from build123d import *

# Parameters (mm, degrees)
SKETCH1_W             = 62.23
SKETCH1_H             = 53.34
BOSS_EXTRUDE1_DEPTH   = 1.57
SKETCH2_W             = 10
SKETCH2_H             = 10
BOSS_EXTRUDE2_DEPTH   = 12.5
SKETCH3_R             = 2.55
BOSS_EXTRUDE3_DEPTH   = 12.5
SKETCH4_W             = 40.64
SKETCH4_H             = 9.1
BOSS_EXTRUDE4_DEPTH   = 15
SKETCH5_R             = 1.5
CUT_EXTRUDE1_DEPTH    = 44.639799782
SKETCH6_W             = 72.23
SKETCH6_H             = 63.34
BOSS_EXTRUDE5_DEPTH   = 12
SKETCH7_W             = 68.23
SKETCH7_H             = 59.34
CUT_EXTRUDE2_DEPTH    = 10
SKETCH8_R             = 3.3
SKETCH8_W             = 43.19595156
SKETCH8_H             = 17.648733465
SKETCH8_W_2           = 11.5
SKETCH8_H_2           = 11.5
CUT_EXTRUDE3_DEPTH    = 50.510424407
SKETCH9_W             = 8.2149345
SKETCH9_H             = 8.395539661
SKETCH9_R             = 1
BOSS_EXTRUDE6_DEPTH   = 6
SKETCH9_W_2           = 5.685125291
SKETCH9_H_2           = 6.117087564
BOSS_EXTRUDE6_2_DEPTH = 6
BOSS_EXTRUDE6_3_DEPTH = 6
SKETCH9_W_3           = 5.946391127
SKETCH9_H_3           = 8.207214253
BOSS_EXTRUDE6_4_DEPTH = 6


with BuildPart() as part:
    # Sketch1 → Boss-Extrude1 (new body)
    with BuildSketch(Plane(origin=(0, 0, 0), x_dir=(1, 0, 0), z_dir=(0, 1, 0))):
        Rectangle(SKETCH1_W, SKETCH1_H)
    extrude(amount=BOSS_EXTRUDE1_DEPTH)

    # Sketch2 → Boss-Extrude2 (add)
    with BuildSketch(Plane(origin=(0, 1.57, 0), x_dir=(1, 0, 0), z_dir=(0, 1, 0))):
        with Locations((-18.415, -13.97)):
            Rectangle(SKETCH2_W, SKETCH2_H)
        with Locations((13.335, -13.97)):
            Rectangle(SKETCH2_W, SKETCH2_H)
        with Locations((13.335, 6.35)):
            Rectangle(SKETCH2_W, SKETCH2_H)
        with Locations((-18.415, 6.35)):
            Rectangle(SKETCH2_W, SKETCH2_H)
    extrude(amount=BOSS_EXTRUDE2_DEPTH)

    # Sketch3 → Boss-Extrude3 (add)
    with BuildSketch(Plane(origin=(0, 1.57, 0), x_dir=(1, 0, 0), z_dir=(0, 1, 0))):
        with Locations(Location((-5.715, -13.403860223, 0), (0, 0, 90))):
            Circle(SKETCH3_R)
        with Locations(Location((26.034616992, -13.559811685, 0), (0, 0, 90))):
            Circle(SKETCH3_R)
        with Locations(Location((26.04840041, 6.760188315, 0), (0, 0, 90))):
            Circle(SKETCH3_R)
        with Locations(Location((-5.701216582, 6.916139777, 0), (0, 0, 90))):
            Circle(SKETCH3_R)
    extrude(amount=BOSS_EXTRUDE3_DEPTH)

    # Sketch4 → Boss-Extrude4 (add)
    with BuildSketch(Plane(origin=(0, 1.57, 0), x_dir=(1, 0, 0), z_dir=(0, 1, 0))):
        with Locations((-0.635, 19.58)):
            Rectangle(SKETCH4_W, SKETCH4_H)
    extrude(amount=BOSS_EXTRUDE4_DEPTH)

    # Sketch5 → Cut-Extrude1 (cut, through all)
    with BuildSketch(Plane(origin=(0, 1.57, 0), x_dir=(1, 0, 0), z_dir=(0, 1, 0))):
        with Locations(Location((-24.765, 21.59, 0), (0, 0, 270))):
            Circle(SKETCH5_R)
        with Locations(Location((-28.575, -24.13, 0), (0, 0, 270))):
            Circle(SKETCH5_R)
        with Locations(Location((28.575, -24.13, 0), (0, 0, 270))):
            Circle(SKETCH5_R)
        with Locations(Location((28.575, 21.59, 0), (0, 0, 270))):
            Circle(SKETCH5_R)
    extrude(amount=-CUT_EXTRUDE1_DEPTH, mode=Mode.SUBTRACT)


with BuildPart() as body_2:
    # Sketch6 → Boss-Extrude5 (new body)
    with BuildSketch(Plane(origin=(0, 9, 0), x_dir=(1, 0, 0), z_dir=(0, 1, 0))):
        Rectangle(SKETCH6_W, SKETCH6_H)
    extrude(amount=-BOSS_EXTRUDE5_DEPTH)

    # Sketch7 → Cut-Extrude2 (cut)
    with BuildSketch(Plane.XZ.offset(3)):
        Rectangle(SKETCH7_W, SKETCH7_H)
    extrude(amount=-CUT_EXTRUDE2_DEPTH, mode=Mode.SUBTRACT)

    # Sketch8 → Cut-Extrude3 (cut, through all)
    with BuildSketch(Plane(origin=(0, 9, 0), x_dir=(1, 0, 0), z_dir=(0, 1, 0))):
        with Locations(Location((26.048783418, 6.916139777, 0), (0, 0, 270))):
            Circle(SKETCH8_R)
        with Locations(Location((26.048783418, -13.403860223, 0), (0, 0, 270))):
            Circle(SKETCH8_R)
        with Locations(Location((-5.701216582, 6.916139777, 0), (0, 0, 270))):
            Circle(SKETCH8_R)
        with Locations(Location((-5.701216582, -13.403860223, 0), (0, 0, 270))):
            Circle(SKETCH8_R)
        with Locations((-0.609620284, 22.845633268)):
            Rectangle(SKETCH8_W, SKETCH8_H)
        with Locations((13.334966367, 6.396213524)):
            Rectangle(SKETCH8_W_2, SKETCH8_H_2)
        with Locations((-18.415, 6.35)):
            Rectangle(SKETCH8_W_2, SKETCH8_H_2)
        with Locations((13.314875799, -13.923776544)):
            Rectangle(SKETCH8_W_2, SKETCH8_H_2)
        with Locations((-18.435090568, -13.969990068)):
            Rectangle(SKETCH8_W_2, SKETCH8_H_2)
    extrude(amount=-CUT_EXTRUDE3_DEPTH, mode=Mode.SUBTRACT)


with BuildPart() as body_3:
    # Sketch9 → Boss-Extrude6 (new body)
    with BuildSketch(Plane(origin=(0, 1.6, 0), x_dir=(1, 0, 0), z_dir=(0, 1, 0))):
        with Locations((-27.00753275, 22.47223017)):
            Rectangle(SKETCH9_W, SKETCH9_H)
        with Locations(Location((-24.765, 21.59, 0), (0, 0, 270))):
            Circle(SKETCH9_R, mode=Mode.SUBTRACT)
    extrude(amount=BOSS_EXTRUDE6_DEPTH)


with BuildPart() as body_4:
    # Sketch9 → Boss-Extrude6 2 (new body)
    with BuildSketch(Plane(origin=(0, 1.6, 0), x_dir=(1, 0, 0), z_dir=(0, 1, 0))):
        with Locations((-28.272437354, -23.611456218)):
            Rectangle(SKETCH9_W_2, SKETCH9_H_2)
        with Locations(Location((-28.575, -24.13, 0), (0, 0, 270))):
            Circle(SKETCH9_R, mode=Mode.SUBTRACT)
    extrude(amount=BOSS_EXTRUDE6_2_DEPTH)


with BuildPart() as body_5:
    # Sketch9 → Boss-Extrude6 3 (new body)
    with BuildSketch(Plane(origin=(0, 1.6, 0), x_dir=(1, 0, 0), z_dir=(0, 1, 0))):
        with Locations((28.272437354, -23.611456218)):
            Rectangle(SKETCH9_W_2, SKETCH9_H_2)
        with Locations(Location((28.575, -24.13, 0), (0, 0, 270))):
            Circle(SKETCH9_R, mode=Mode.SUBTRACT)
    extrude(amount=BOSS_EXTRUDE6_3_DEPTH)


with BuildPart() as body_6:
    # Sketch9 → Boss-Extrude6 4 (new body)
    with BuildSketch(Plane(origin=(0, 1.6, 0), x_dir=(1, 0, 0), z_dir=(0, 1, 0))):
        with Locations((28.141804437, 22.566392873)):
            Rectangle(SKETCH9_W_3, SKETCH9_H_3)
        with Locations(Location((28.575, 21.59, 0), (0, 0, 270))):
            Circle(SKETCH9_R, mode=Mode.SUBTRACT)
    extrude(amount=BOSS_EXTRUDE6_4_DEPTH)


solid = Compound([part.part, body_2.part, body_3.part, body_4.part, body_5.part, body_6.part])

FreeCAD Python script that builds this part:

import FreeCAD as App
import Part
import Sketcher
Q = App.Units.Quantity

doc = App.newDocument("Part")
body = doc.addObject("PartDesign::Body", "Body")

sketch1 = body.newObject("Sketcher::SketchObject", "Sketch")
sketch1.AttachmentSupport = (doc.getObject("XZ_Plane"), [""])
sketch1.MapMode = "FlatFace"
sketch1.addGeometry(Part.LineSegment(App.Vector(-31.115, -26.67, 0), App.Vector(-31.115, 26.67, 0)), False)
sketch1.addGeometry(Part.LineSegment(App.Vector(-31.115, 26.67, 0), App.Vector(31.115, 26.67, 0)), False)
sketch1.addGeometry(Part.LineSegment(App.Vector(31.115, 26.67, 0), App.Vector(31.115, -26.67, 0)), False)
sketch1.addGeometry(Part.LineSegment(App.Vector(31.115, -26.67, 0), App.Vector(-31.115, -26.67, 0)), False)
sketch1.addConstraint(Sketcher.Constraint("Coincident", 0, 2, 1, 1))
sketch1.addConstraint(Sketcher.Constraint("Coincident", 1, 2, 2, 1))
sketch1.addConstraint(Sketcher.Constraint("Coincident", 2, 2, 3, 1))
sketch1.addConstraint(Sketcher.Constraint("Coincident", 3, 2, 0, 1))
sketch1.addConstraint(Sketcher.Constraint("Vertical", 0))
sketch1.addConstraint(Sketcher.Constraint("Horizontal", 1))
sketch1.addConstraint(Sketcher.Constraint("Vertical", 2))
sketch1.addConstraint(Sketcher.Constraint("Horizontal", 3))
sketch1.addConstraint(Sketcher.Constraint("Symmetric", 0, 2, 2, 2, -1, 1))
sketch1.addConstraint(Sketcher.Constraint("DistanceX", 1, 1, 1, 2, Q("62.23 mm")))
sketch1.addConstraint(Sketcher.Constraint("DistanceY", 0, 1, 0, 2, Q("53.34 mm")))
pad1 = body.newObject("PartDesign::Pad", "Pad")
pad1.Profile = sketch1
pad1.Length = 1.57
pad1.Reversed = True

sketch2 = body.newObject("Sketcher::SketchObject", "Sketch001")
sketch2.AttachmentSupport = (doc.getObject("XZ_Plane"), [""])
sketch2.MapMode = "FlatFace"
sketch2.AttachmentOffset = App.Placement(App.Vector(0, 0, -1.57), App.Rotation())
sketch2.addGeometry(Part.LineSegment(App.Vector(-23.415, 8.97, 0), App.Vector(-23.415, 18.97, 0)), False)
sketch2.addGeometry(Part.LineSegment(App.Vector(-23.415, 18.97, 0), App.Vector(-13.415, 18.97, 0)), False)
sketch2.addGeometry(Part.LineSegment(App.Vector(-13.415, 18.97, 0), App.Vector(-13.415, 8.97, 0)), False)
sketch2.addGeometry(Part.LineSegment(App.Vector(-13.415, 8.97, 0), App.Vector(-23.415, 8.97, 0)), False)
sketch2.addGeometry(Part.LineSegment(App.Vector(8.335, 8.97, 0), App.Vector(8.335, 18.97, 0)), False)
sketch2.addGeometry(Part.LineSegment(App.Vector(8.335, 18.97, 0), App.Vector(18.335, 18.97, 0)), False)
sketch2.addGeometry(Part.LineSegment(App.Vector(18.335, 18.97, 0), App.Vector(18.335, 8.97, 0)), False)
sketch2.addGeometry(Part.LineSegment(App.Vector(18.335, 8.97, 0), App.Vector(8.335, 8.97, 0)), False)
sketch2.addGeometry(Part.LineSegment(App.Vector(8.335, -11.35, 0), App.Vector(8.335, -1.35, 0)), False)
sketch2.addGeometry(Part.LineSegment(App.Vector(8.335, -1.35, 0), App.Vector(18.335, -1.35, 0)), False)
sketch2.addGeometry(Part.LineSegment(App.Vector(18.335, -1.35, 0), App.Vector(18.335, -11.35, 0)), False)
sketch2.addGeometry(Part.LineSegment(App.Vector(18.335, -11.35, 0), App.Vector(8.335, -11.35, 0)), False)
sketch2.addGeometry(Part.LineSegment(App.Vector(-23.415, -11.35, 0), App.Vector(-23.415, -1.35, 0)), False)
sketch2.addGeometry(Part.LineSegment(App.Vector(-23.415, -1.35, 0), App.Vector(-13.415, -1.35, 0)), False)
sketch2.addGeometry(Part.LineSegment(App.Vector(-13.415, -1.35, 0), App.Vector(-13.415, -11.35, 0)), False)
sketch2.addGeometry(Part.LineSegment(App.Vector(-13.415, -11.35, 0), App.Vector(-23.415, -11.35, 0)), False)
sketch2.addConstraint(Sketcher.Constraint("Coincident", 0, 2, 1, 1))
sketch2.addConstraint(Sketcher.Constraint("Coincident", 1, 2, 2, 1))
sketch2.addConstraint(Sketcher.Constraint("Coincident", 2, 2, 3, 1))
sketch2.addConstraint(Sketcher.Constraint("Coincident", 3, 2, 0, 1))
sketch2.addConstraint(Sketcher.Constraint("Coincident", 4, 2, 5, 1))
sketch2.addConstraint(Sketcher.Constraint("Coincident", 5, 2, 6, 1))
sketch2.addConstraint(Sketcher.Constraint("Coincident", 6, 2, 7, 1))
sketch2.addConstraint(Sketcher.Constraint("Coincident", 7, 2, 4, 1))
sketch2.addConstraint(Sketcher.Constraint("Coincident", 8, 2, 9, 1))
sketch2.addConstraint(Sketcher.Constraint("Coincident", 9, 2, 10, 1))
sketch2.addConstraint(Sketcher.Constraint("Coincident", 10, 2, 11, 1))
sketch2.addConstraint(Sketcher.Constraint("Coincident", 11, 2, 8, 1))
sketch2.addConstraint(Sketcher.Constraint("Coincident", 12, 2, 13, 1))
sketch2.addConstraint(Sketcher.Constraint("Coincident", 13, 2, 14, 1))
sketch2.addConstraint(Sketcher.Constraint("Coincident", 14, 2, 15, 1))
sketch2.addConstraint(Sketcher.Constraint("Coincident", 15, 2, 12, 1))
sketch2.addConstraint(Sketcher.Constraint("Vertical", 0))
sketch2.addConstraint(Sketcher.Constraint("Horizontal", 1))
sketch2.addConstraint(Sketcher.Constraint("Vertical", 2))
sketch2.addConstraint(Sketcher.Constraint("Horizontal", 3))
sketch2.addConstraint(Sketcher.Constraint("Vertical", 4))
sketch2.addConstraint(Sketcher.Constraint("Horizontal", 5))
sketch2.addConstraint(Sketcher.Constraint("Vertical", 6))
sketch2.addConstraint(Sketcher.Constraint("Horizontal", 7))
sketch2.addConstraint(Sketcher.Constraint("Vertical", 8))
sketch2.addConstraint(Sketcher.Constraint("Horizontal", 9))
sketch2.addConstraint(Sketcher.Constraint("Vertical", 10))
sketch2.addConstraint(Sketcher.Constraint("Horizontal", 11))
sketch2.addConstraint(Sketcher.Constraint("Vertical", 12))
sketch2.addConstraint(Sketcher.Constraint("Horizontal", 13))
sketch2.addConstraint(Sketcher.Constraint("Vertical", 14))
sketch2.addConstraint(Sketcher.Constraint("Horizontal", 15))
sketch2.addConstraint(Sketcher.Constraint("Horizontal", 1, 2, 4, 2))
sketch2.addConstraint(Sketcher.Constraint("Horizontal", 3, 2, 6, 2))
sketch2.addConstraint(Sketcher.Constraint("Horizontal", 9, 2, 12, 2))
sketch2.addConstraint(Sketcher.Constraint("Horizontal", 11, 2, 14, 2))
sketch2.addConstraint(Sketcher.Constraint("Vertical", 7, 2, 8, 2))
sketch2.addConstraint(Sketcher.Constraint("Vertical", 6, 2, 9, 2))
sketch2.addConstraint(Sketcher.Constraint("Vertical", 3, 2, 12, 2))
sketch2.addConstraint(Sketcher.Constraint("Vertical", 2, 2, 13, 2))
sketch2.addConstraint(Sketcher.Constraint("Equal", 3, 5))
sketch2.addConstraint(Sketcher.Constraint("Equal", 15, 0))
sketch2.addConstraint(Sketcher.Constraint("Equal", 6, 8))
sketch2.addConstraint(Sketcher.Constraint("DistanceX", 1, 1, 1, 2, Q("10 mm")))
sketch2.addConstraint(Sketcher.Constraint("DistanceY", -1, 1, 0, 2, Q("18.97 mm")))
sketch2.addConstraint(Sketcher.Constraint("DistanceY", 8, 2, -1, 1, Q("1.35 mm")))
sketch2.addConstraint(Sketcher.Constraint("DistanceX", 1, 2, 4, 2, Q("21.75 mm")))
sketch2.addConstraint(Sketcher.Constraint("DistanceX", 0, 2, -1, 1, Q("23.415 mm")))
pad2 = body.newObject("PartDesign::Pad", "Pad001")
pad2.Profile = sketch2
pad2.Length = 12.5
pad2.Reversed = True

sketch3 = body.newObject("Sketcher::SketchObject", "Sketch002")
sketch3.AttachmentSupport = (doc.getObject("XZ_Plane"), [""])
sketch3.MapMode = "FlatFace"
sketch3.AttachmentOffset = App.Placement(App.Vector(0, 0, -1.57), App.Rotation())
sketch3.addGeometry(Part.Circle(App.Vector(-5.715, 13.40386, 0), App.Vector(0, 0, 1), 2.55), False)
sketch3.addGeometry(Part.Circle(App.Vector(26.034617, 13.559812, 0), App.Vector(0, 0, 1), 2.55), False)
sketch3.addGeometry(Part.Circle(App.Vector(26.0484, -6.760188, 0), App.Vector(0, 0, 1), 2.55), False)
sketch3.addGeometry(Part.Circle(App.Vector(-5.701217, -6.91614, 0), App.Vector(0, 0, 1), 2.55), False)
sketch3.addConstraint(Sketcher.Constraint("Equal", 0, 1))
sketch3.addConstraint(Sketcher.Constraint("Equal", 1, 2))
sketch3.addConstraint(Sketcher.Constraint("Equal", 2, 3))
sketch3.addConstraint(Sketcher.Constraint("Diameter", 0, Q("5.1 mm")))
sketch3.addConstraint(Sketcher.Constraint("DistanceY", 2, 3, 1, 3, Q("20.32 mm")))
sketch3.addConstraint(Sketcher.Constraint("DistanceY", 3, 3, 0, 3, Q("20.32 mm")))
sketch3.addConstraint(Sketcher.Constraint("DistanceX", 0, 3, -1, 1, Q("5.715 mm")))
sketch3.addConstraint(Sketcher.Constraint("DistanceX", -1, 1, 2, 3, Q("26.0484 mm")))
sketch3.addConstraint(Sketcher.Constraint("DistanceY", -1, 1, 0, 3, Q("13.40386 mm")))
sketch3.addConstraint(Sketcher.Constraint("DistanceY", -1, 1, 1, 3, Q("13.559812 mm")))
sketch3.addConstraint(Sketcher.Constraint("DistanceX", -1, 1, 1, 3, Q("26.034617 mm")))
sketch3.addConstraint(Sketcher.Constraint("DistanceX", 3, 3, -1, 1, Q("5.701217 mm")))
pad3 = body.newObject("PartDesign::Pad", "Pad002")
pad3.Profile = sketch3
pad3.Length = 12.5
pad3.Reversed = True

sketch4 = body.newObject("Sketcher::SketchObject", "Sketch003")
sketch4.AttachmentSupport = (doc.getObject("XZ_Plane"), [""])
sketch4.MapMode = "FlatFace"
sketch4.AttachmentOffset = App.Placement(App.Vector(0, 0, -1.57), App.Rotation())
sketch4.addGeometry(Part.LineSegment(App.Vector(-20.955, -24.13, 0), App.Vector(-20.955, -15.03, 0)), False)
sketch4.addGeometry(Part.LineSegment(App.Vector(-20.955, -15.03, 0), App.Vector(19.685, -15.03, 0)), False)
sketch4.addGeometry(Part.LineSegment(App.Vector(19.685, -15.03, 0), App.Vector(19.685, -24.13, 0)), False)
sketch4.addGeometry(Part.LineSegment(App.Vector(19.685, -24.13, 0), App.Vector(-20.955, -24.13, 0)), False)
sketch4.addConstraint(Sketcher.Constraint("Coincident", 0, 2, 1, 1))
sketch4.addConstraint(Sketcher.Constraint("Coincident", 1, 2, 2, 1))
sketch4.addConstraint(Sketcher.Constraint("Coincident", 2, 2, 3, 1))
sketch4.addConstraint(Sketcher.Constraint("Coincident", 3, 2, 0, 1))
sketch4.addConstraint(Sketcher.Constraint("Vertical", 0))
sketch4.addConstraint(Sketcher.Constraint("Horizontal", 1))
sketch4.addConstraint(Sketcher.Constraint("Vertical", 2))
sketch4.addConstraint(Sketcher.Constraint("Horizontal", 3))
sketch4.addConstraint(Sketcher.Constraint("DistanceY", 0, 1, 0, 2, Q("9.1 mm")))
sketch4.addConstraint(Sketcher.Constraint("DistanceX", 1, 1, 1, 2, Q("40.64 mm")))
sketch4.addConstraint(Sketcher.Constraint("DistanceY", 0, 2, -1, 1, Q("15.03 mm")))
sketch4.addConstraint(Sketcher.Constraint("DistanceX", 0, 2, -1, 1, Q("20.955 mm")))
pad4 = body.newObject("PartDesign::Pad", "Pad003")
pad4.Profile = sketch4
pad4.Length = 15
pad4.Reversed = True

sketch5 = body.newObject("Sketcher::SketchObject", "Sketch004")
sketch5.AttachmentSupport = (doc.getObject("XZ_Plane"), [""])
sketch5.MapMode = "FlatFace"
sketch5.AttachmentOffset = App.Placement(App.Vector(0, 0, -1.57), App.Rotation())
sketch5.addGeometry(Part.Circle(App.Vector(-24.765, -21.59, 0), App.Vector(0, 0, 1), 1.5), False)
sketch5.addGeometry(Part.Circle(App.Vector(-28.575, 24.13, 0), App.Vector(0, 0, 1), 1.5), False)
sketch5.addGeometry(Part.Circle(App.Vector(28.575, 24.13, 0), App.Vector(0, 0, 1), 1.5), False)
sketch5.addGeometry(Part.Circle(App.Vector(28.575, -21.59, 0), App.Vector(0, 0, 1), 1.5), False)
sketch5.addConstraint(Sketcher.Constraint("Equal", 0, 1))
sketch5.addConstraint(Sketcher.Constraint("Equal", 1, 2))
sketch5.addConstraint(Sketcher.Constraint("Equal", 2, 3))
sketch5.addConstraint(Sketcher.Constraint("Symmetric", 1, 3, 2, 3, -2))
sketch5.addConstraint(Sketcher.Constraint("Horizontal", 0, 3, 3, 3))
sketch5.addConstraint(Sketcher.Constraint("Vertical", 2, 3, 3, 3))
sketch5.addConstraint(Sketcher.Constraint("Diameter", 0, Q("3 mm")))
sketch5.addConstraint(Sketcher.Constraint("DistanceY", 0, 3, -1, 1, Q("21.59 mm")))
sketch5.addConstraint(Sketcher.Constraint("DistanceY", -1, 1, 1, 3, Q("24.13 mm")))
sketch5.addConstraint(Sketcher.Constraint("DistanceX", 1, 3, 0, 3, Q("3.81 mm")))
sketch5.addConstraint(Sketcher.Constraint("DistanceX", 1, 3, 2, 3, Q("57.15 mm")))
pocket1 = body.newObject("PartDesign::Pocket", "Pocket")
pocket1.Profile = sketch5
pocket1.Type = "ThroughAll"
pocket1.Reversed = True
body2 = doc.addObject("PartDesign::Body", "Body001")

sketch6 = body2.newObject("Sketcher::SketchObject", "Sketch005")
sketch6.AttachmentSupport = (doc.getObject("XZ_Plane001"), [""])
sketch6.MapMode = "FlatFace"
sketch6.AttachmentOffset = App.Placement(App.Vector(0, 0, -9), App.Rotation())
sketch6.addGeometry(Part.LineSegment(App.Vector(-36.115, -31.67, 0), App.Vector(-36.115, 31.67, 0)), False)
sketch6.addGeometry(Part.LineSegment(App.Vector(-36.115, 31.67, 0), App.Vector(36.115, 31.67, 0)), False)
sketch6.addGeometry(Part.LineSegment(App.Vector(36.115, 31.67, 0), App.Vector(36.115, -31.67, 0)), False)
sketch6.addGeometry(Part.LineSegment(App.Vector(36.115, -31.67, 0), App.Vector(-36.115, -31.67, 0)), False)
sketch6.addConstraint(Sketcher.Constraint("Coincident", 0, 2, 1, 1))
sketch6.addConstraint(Sketcher.Constraint("Coincident", 1, 2, 2, 1))
sketch6.addConstraint(Sketcher.Constraint("Coincident", 2, 2, 3, 1))
sketch6.addConstraint(Sketcher.Constraint("Coincident", 3, 2, 0, 1))
sketch6.addConstraint(Sketcher.Constraint("Vertical", 0))
sketch6.addConstraint(Sketcher.Constraint("Horizontal", 1))
sketch6.addConstraint(Sketcher.Constraint("Vertical", 2))
sketch6.addConstraint(Sketcher.Constraint("Horizontal", 3))
sketch6.addConstraint(Sketcher.Constraint("Symmetric", 0, 2, 2, 2, -1, 1))
sketch6.addConstraint(Sketcher.Constraint("DistanceX", 1, 1, 1, 2, Q("72.23 mm")))
sketch6.addConstraint(Sketcher.Constraint("DistanceY", 0, 1, 0, 2, Q("63.34 mm")))
pad5 = body2.newObject("PartDesign::Pad", "Pad004")
pad5.Profile = sketch6
pad5.Length = 12

sketch7 = body2.newObject("Sketcher::SketchObject", "Sketch006")
sketch7.AttachmentSupport = (doc.getObject("XZ_Plane001"), [""])
sketch7.MapMode = "FlatFace"
sketch7.AttachmentOffset = App.Placement(App.Vector(0, 0, 3), App.Rotation())
sketch7.addGeometry(Part.LineSegment(App.Vector(-34.115, 29.67, 0), App.Vector(-34.115, -29.67, 0)), False)
sketch7.addGeometry(Part.LineSegment(App.Vector(-34.115, -29.67, 0), App.Vector(34.115, -29.67, 0)), False)
sketch7.addGeometry(Part.LineSegment(App.Vector(34.115, -29.67, 0), App.Vector(34.115, 29.67, 0)), False)
sketch7.addGeometry(Part.LineSegment(App.Vector(34.115, 29.67, 0), App.Vector(-34.115, 29.67, 0)), False)
sketch7.addConstraint(Sketcher.Constraint("Coincident", 0, 2, 1, 1))
sketch7.addConstraint(Sketcher.Constraint("Coincident", 1, 2, 2, 1))
sketch7.addConstraint(Sketcher.Constraint("Coincident", 2, 2, 3, 1))
sketch7.addConstraint(Sketcher.Constraint("Coincident", 3, 2, 0, 1))
sketch7.addConstraint(Sketcher.Constraint("Vertical", 0))
sketch7.addConstraint(Sketcher.Constraint("Horizontal", 1))
sketch7.addConstraint(Sketcher.Constraint("Vertical", 2))
sketch7.addConstraint(Sketcher.Constraint("Horizontal", 3))
sketch7.addConstraint(Sketcher.Constraint("Symmetric", 0, 2, 2, 2, -1, 1))
sketch7.addConstraint(Sketcher.Constraint("DistanceX", 1, 1, 1, 2, Q("68.23 mm")))
sketch7.addConstraint(Sketcher.Constraint("DistanceY", 0, 2, 0, 1, Q("59.34 mm")))
pocket2 = body2.newObject("PartDesign::Pocket", "Pocket001")
pocket2.Profile = sketch7
pocket2.Length = 10

sketch8 = body2.newObject("Sketcher::SketchObject", "Sketch007")
sketch8.AttachmentSupport = (doc.getObject("XZ_Plane001"), [""])
sketch8.MapMode = "FlatFace"
sketch8.AttachmentOffset = App.Placement(App.Vector(0, 0, -9), App.Rotation())
sketch8.addGeometry(Part.Circle(App.Vector(26.048783, -6.91614, 0), App.Vector(0, 0, 1), 3.3), False)
sketch8.addGeometry(Part.Circle(App.Vector(26.048783, 13.40386, 0), App.Vector(0, 0, 1), 3.3), False)
sketch8.addGeometry(Part.Circle(App.Vector(-5.701217, -6.91614, 0), App.Vector(0, 0, 1), 3.3), False)
sketch8.addGeometry(Part.Circle(App.Vector(-5.701217, 13.40386, 0), App.Vector(0, 0, 1), 3.3), False)
sketch8.addGeometry(Part.LineSegment(App.Vector(-22.207596, -31.67, 0), App.Vector(-22.207596, -14.021267, 0)), False)
sketch8.addGeometry(Part.LineSegment(App.Vector(-22.207596, -14.021267, 0), App.Vector(20.988355, -14.021267, 0)), False)
sketch8.addGeometry(Part.LineSegment(App.Vector(20.988355, -14.021267, 0), App.Vector(20.988355, -31.67, 0)), False)
sketch8.addGeometry(Part.LineSegment(App.Vector(20.988355, -31.67, 0), App.Vector(-22.207596, -31.67, 0)), False)
sketch8.addGeometry(Part.LineSegment(App.Vector(7.584966, -12.146214, 0), App.Vector(7.584966, -0.646214, 0)), False)
sketch8.addGeometry(Part.LineSegment(App.Vector(7.584966, -0.646214, 0), App.Vector(19.084966, -0.646214, 0)), False)
sketch8.addGeometry(Part.LineSegment(App.Vector(19.084966, -0.646214, 0), App.Vector(19.084966, -12.146214, 0)), False)
sketch8.addGeometry(Part.LineSegment(App.Vector(19.084966, -12.146214, 0), App.Vector(7.584966, -12.146214, 0)), False)
sketch8.addGeometry(Part.LineSegment(App.Vector(-24.165, -12.1, 0), App.Vector(-24.165, -0.6, 0)), False)
sketch8.addGeometry(Part.LineSegment(App.Vector(-24.165, -0.6, 0), App.Vector(-12.665, -0.6, 0)), False)
sketch8.addGeometry(Part.LineSegment(App.Vector(-12.665, -0.6, 0), App.Vector(-12.665, -12.1, 0)), False)
sketch8.addGeometry(Part.LineSegment(App.Vector(-12.665, -12.1, 0), App.Vector(-24.165, -12.1, 0)), False)
sketch8.addGeometry(Part.LineSegment(App.Vector(7.564876, 8.173777, 0), App.Vector(7.564876, 19.673777, 0)), False)
sketch8.addGeometry(Part.LineSegment(App.Vector(7.564876, 19.673777, 0), App.Vector(19.064876, 19.673777, 0)), False)
sketch8.addGeometry(Part.LineSegment(App.Vector(19.064876, 19.673777, 0), App.Vector(19.064876, 8.173777, 0)), False)
sketch8.addGeometry(Part.LineSegment(App.Vector(19.064876, 8.173777, 0), App.Vector(7.564876, 8.173777, 0)), False)
sketch8.addGeometry(Part.LineSegment(App.Vector(-24.185091, 8.21999, 0), App.Vector(-24.185091, 19.71999, 0)), False)
sketch8.addGeometry(Part.LineSegment(App.Vector(-24.185091, 19.71999, 0), App.Vector(-12.685091, 19.71999, 0)), False)
sketch8.addGeometry(Part.LineSegment(App.Vector(-12.685091, 19.71999, 0), App.Vector(-12.685091, 8.21999, 0)), False)
sketch8.addGeometry(Part.LineSegment(App.Vector(-12.685091, 8.21999, 0), App.Vector(-24.185091, 8.21999, 0)), False)
sketch8.addConstraint(Sketcher.Constraint("Coincident", 4, 2, 5, 1))
sketch8.addConstraint(Sketcher.Constraint("Coincident", 5, 2, 6, 1))
sketch8.addConstraint(Sketcher.Constraint("Coincident", 6, 2, 7, 1))
sketch8.addConstraint(Sketcher.Constraint("Coincident", 7, 2, 4, 1))
sketch8.addConstraint(Sketcher.Constraint("Coincident", 8, 2, 9, 1))
sketch8.addConstraint(Sketcher.Constraint("Coincident", 9, 2, 10, 1))
sketch8.addConstraint(Sketcher.Constraint("Coincident", 10, 2, 11, 1))
sketch8.addConstraint(Sketcher.Constraint("Coincident", 11, 2, 8, 1))
sketch8.addConstraint(Sketcher.Constraint("Coincident", 12, 2, 13, 1))
sketch8.addConstraint(Sketcher.Constraint("Coincident", 13, 2, 14, 1))
sketch8.addConstraint(Sketcher.Constraint("Coincident", 14, 2, 15, 1))
sketch8.addConstraint(Sketcher.Constraint("Coincident", 15, 2, 12, 1))
sketch8.addConstraint(Sketcher.Constraint("Coincident", 16, 2, 17, 1))
sketch8.addConstraint(Sketcher.Constraint("Coincident", 17, 2, 18, 1))
sketch8.addConstraint(Sketcher.Constraint("Coincident", 18, 2, 19, 1))
sketch8.addConstraint(Sketcher.Constraint("Coincident", 19, 2, 16, 1))
sketch8.addConstraint(Sketcher.Constraint("Coincident", 20, 2, 21, 1))
sketch8.addConstraint(Sketcher.Constraint("Coincident", 21, 2, 22, 1))
sketch8.addConstraint(Sketcher.Constraint("Coincident", 22, 2, 23, 1))
sketch8.addConstraint(Sketcher.Constraint("Coincident", 23, 2, 20, 1))
sketch8.addConstraint(Sketcher.Constraint("Vertical", 4))
sketch8.addConstraint(Sketcher.Constraint("Horizontal", 5))
sketch8.addConstraint(Sketcher.Constraint("Vertical", 6))
sketch8.addConstraint(Sketcher.Constraint("Horizontal", 7))
sketch8.addConstraint(Sketcher.Constraint("Vertical", 8))
sketch8.addConstraint(Sketcher.Constraint("Horizontal", 9))
sketch8.addConstraint(Sketcher.Constraint("Vertical", 10))
sketch8.addConstraint(Sketcher.Constraint("Horizontal", 11))
sketch8.addConstraint(Sketcher.Constraint("Vertical", 12))
sketch8.addConstraint(Sketcher.Constraint("Horizontal", 13))
sketch8.addConstraint(Sketcher.Constraint("Vertical", 14))
sketch8.addConstraint(Sketcher.Constraint("Horizontal", 15))
sketch8.addConstraint(Sketcher.Constraint("Vertical", 16))
sketch8.addConstraint(Sketcher.Constraint("Horizontal", 17))
sketch8.addConstraint(Sketcher.Constraint("Vertical", 18))
sketch8.addConstraint(Sketcher.Constraint("Horizontal", 19))
sketch8.addConstraint(Sketcher.Constraint("Vertical", 20))
sketch8.addConstraint(Sketcher.Constraint("Horizontal", 21))
sketch8.addConstraint(Sketcher.Constraint("Vertical", 22))
sketch8.addConstraint(Sketcher.Constraint("Horizontal", 23))
sketch8.addConstraint(Sketcher.Constraint("Equal", 0, 1))
sketch8.addConstraint(Sketcher.Constraint("Equal", 1, 2))
sketch8.addConstraint(Sketcher.Constraint("Equal", 2, 3))
sketch8.addConstraint(Sketcher.Constraint("Horizontal", 0, 3, 2, 3))
sketch8.addConstraint(Sketcher.Constraint("Horizontal", 1, 3, 3, 3))
sketch8.addConstraint(Sketcher.Constraint("Vertical", 0, 3, 1, 3))
sketch8.addConstraint(Sketcher.Constraint("Vertical", 2, 3, 3, 3))
sketch8.addConstraint(Sketcher.Constraint("Equal", 11, 13))
sketch8.addConstraint(Sketcher.Constraint("Equal", 15, 17))
sketch8.addConstraint(Sketcher.Constraint("Equal", 19, 21))
sketch8.addConstraint(Sketcher.Constraint("Equal", 23, 8))
sketch8.addConstraint(Sketcher.Constraint("Equal", 10, 12))
sketch8.addConstraint(Sketcher.Constraint("Equal", 14, 16))
sketch8.addConstraint(Sketcher.Constraint("Equal", 18, 20))
sketch8.addConstraint(Sketcher.Constraint("Diameter", 0, Q("6.6 mm")))
sketch8.addConstraint(Sketcher.Constraint("DistanceX", 9, 1, 9, 2, Q("11.5 mm")))
sketch8.addConstraint(Sketcher.Constraint("DistanceY", 12, 2, -1, 1, Q("0.6 mm")))
sketch8.addConstraint(Sketcher.Constraint("DistanceY", 6, 2, -1, 1, Q("31.67 mm")))
sketch8.addConstraint(Sketcher.Constraint("DistanceY", 0, 3, 1, 3, Q("20.32 mm")))
sketch8.addConstraint(Sketcher.Constraint("DistanceX", 2, 3, 0, 3, Q("31.75 mm")))
sketch8.addConstraint(Sketcher.Constraint("DistanceX", 12, 2, -1, 1, Q("24.165 mm")))
sketch8.addConstraint(Sketcher.Constraint("DistanceX", 5, 1, 5, 2, Q("43.195952 mm")))
sketch8.addConstraint(Sketcher.Constraint("DistanceY", 4, 1, 4, 2, Q("17.648733 mm")))
sketch8.addConstraint(Sketcher.Constraint("DistanceY", 0, 3, -1, 1, Q("6.91614 mm")))
sketch8.addConstraint(Sketcher.Constraint("DistanceX", 20, 2, -1, 1, Q("24.185091 mm")))
sketch8.addConstraint(Sketcher.Constraint("DistanceY", -1, 1, 20, 2, Q("19.71999 mm")))
sketch8.addConstraint(Sketcher.Constraint("DistanceX", 4, 2, 2, 3, Q("16.506379 mm")))
sketch8.addConstraint(Sketcher.Constraint("DistanceX", 8, 2, 5, 2, Q("13.403389 mm")))
sketch8.addConstraint(Sketcher.Constraint("DistanceX", 16, 2, 8, 2, Q("0.020091 mm")))
sketch8.addConstraint(Sketcher.Constraint("DistanceY", 8, 2, 16, 2, Q("20.31999 mm")))
sketch8.addConstraint(Sketcher.Constraint("DistanceX", -1, 1, 0, 3, Q("26.048783 mm")))
sketch8.addConstraint(Sketcher.Constraint("DistanceY", 8, 2, -1, 1, Q("0.646214 mm")))
pocket3 = body2.newObject("PartDesign::Pocket", "Pocket002")
pocket3.Profile = sketch8
pocket3.Type = "ThroughAll"
pocket3.Reversed = True
body3 = doc.addObject("PartDesign::Body", "Body002")

sketch9 = body3.newObject("Sketcher::SketchObject", "Sketch008")
sketch9.AttachmentSupport = (doc.getObject("XZ_Plane002"), [""])
sketch9.MapMode = "FlatFace"
sketch9.AttachmentOffset = App.Placement(App.Vector(0, 0, -1.6), App.Rotation())
sketch9.addGeometry(Part.LineSegment(App.Vector(-31.115, -26.67, 0), App.Vector(-31.115, -18.27446, 0)), False)
sketch9.addGeometry(Part.LineSegment(App.Vector(-31.115, -18.27446, 0), App.Vector(-22.900066, -18.27446, 0)), False)
sketch9.addGeometry(Part.LineSegment(App.Vector(-22.900066, -18.27446, 0), App.Vector(-22.900066, -26.67, 0)), False)
sketch9.addGeometry(Part.LineSegment(App.Vector(-22.900066, -26.67, 0), App.Vector(-31.115, -26.67, 0)), False)
sketch9.addGeometry(Part.Circle(App.Vector(-24.765, -21.59, 0), App.Vector(0, 0, 1), 1), False)
sketch9.addConstraint(Sketcher.Constraint("Coincident", 0, 2, 1, 1))
sketch9.addConstraint(Sketcher.Constraint("Coincident", 1, 2, 2, 1))
sketch9.addConstraint(Sketcher.Constraint("Coincident", 2, 2, 3, 1))
sketch9.addConstraint(Sketcher.Constraint("Coincident", 3, 2, 0, 1))
sketch9.addConstraint(Sketcher.Constraint("Vertical", 0))
sketch9.addConstraint(Sketcher.Constraint("Horizontal", 1))
sketch9.addConstraint(Sketcher.Constraint("Vertical", 2))
sketch9.addConstraint(Sketcher.Constraint("Horizontal", 3))
sketch9.addConstraint(Sketcher.Constraint("Diameter", 4, Q("2 mm")))
sketch9.addConstraint(Sketcher.Constraint("DistanceY", 4, 3, -1, 1, Q("21.59 mm")))
sketch9.addConstraint(Sketcher.Constraint("DistanceY", 2, 2, -1, 1, Q("26.67 mm")))
sketch9.addConstraint(Sketcher.Constraint("DistanceX", 0, 2, 4, 3, Q("6.35 mm")))
sketch9.addConstraint(Sketcher.Constraint("DistanceX", 4, 3, -1, 1, Q("24.765 mm")))
sketch9.addConstraint(Sketcher.Constraint("DistanceY", 0, 1, 0, 2, Q("8.39554 mm")))
sketch9.addConstraint(Sketcher.Constraint("DistanceX", 1, 1, 1, 2, Q("8.214934 mm")))
pad6 = body3.newObject("PartDesign::Pad", "Pad005")
pad6.Profile = sketch9
pad6.Length = 6
pad6.Reversed = True
body4 = doc.addObject("PartDesign::Body", "Body003")

sketch10 = body4.newObject("Sketcher::SketchObject", "Sketch009")
sketch10.AttachmentSupport = (doc.getObject("XZ_Plane003"), [""])
sketch10.MapMode = "FlatFace"
sketch10.AttachmentOffset = App.Placement(App.Vector(0, 0, -1.6), App.Rotation())
sketch10.addGeometry(Part.LineSegment(App.Vector(-31.115, 20.552912, 0), App.Vector(-31.115, 26.67, 0)), False)
sketch10.addGeometry(Part.LineSegment(App.Vector(-31.115, 26.67, 0), App.Vector(-25.429875, 26.67, 0)), False)
sketch10.addGeometry(Part.LineSegment(App.Vector(-25.429875, 26.67, 0), App.Vector(-25.429875, 20.552912, 0)), False)
sketch10.addGeometry(Part.LineSegment(App.Vector(-25.429875, 20.552912, 0), App.Vector(-31.115, 20.552912, 0)), False)
sketch10.addGeometry(Part.Circle(App.Vector(-28.575, 24.13, 0), App.Vector(0, 0, 1), 1), False)
sketch10.addConstraint(Sketcher.Constraint("Coincident", 0, 2, 1, 1))
sketch10.addConstraint(Sketcher.Constraint("Coincident", 1, 2, 2, 1))
sketch10.addConstraint(Sketcher.Constraint("Coincident", 2, 2, 3, 1))
sketch10.addConstraint(Sketcher.Constraint("Coincident", 3, 2, 0, 1))
sketch10.addConstraint(Sketcher.Constraint("Vertical", 0))
sketch10.addConstraint(Sketcher.Constraint("Horizontal", 1))
sketch10.addConstraint(Sketcher.Constraint("Vertical", 2))
sketch10.addConstraint(Sketcher.Constraint("Horizontal", 3))
sketch10.addConstraint(Sketcher.Constraint("Diameter", 4, Q("2 mm")))
sketch10.addConstraint(Sketcher.Constraint("DistanceY", -1, 1, 4, 3, Q("24.13 mm")))
sketch10.addConstraint(Sketcher.Constraint("DistanceY", -1, 1, 0, 2, Q("26.67 mm")))
sketch10.addConstraint(Sketcher.Constraint("DistanceX", 0, 2, 4, 3, Q("2.54 mm")))
sketch10.addConstraint(Sketcher.Constraint("DistanceX", 4, 3, -1, 1, Q("28.575 mm")))
sketch10.addConstraint(Sketcher.Constraint("DistanceX", 1, 1, 1, 2, Q("5.685125 mm")))
sketch10.addConstraint(Sketcher.Constraint("DistanceY", 0, 1, 0, 2, Q("6.117088 mm")))
pad7 = body4.newObject("PartDesign::Pad", "Pad006")
pad7.Profile = sketch10
pad7.Length = 6
pad7.Reversed = True
body5 = doc.addObject("PartDesign::Body", "Body004")

sketch11 = body5.newObject("Sketcher::SketchObject", "Sketch010")
sketch11.AttachmentSupport = (doc.getObject("XZ_Plane004"), [""])
sketch11.MapMode = "FlatFace"
sketch11.AttachmentOffset = App.Placement(App.Vector(0, 0, -1.6), App.Rotation())
sketch11.addGeometry(Part.LineSegment(App.Vector(25.429875, 20.552912, 0), App.Vector(25.429875, 26.67, 0)), False)
sketch11.addGeometry(Part.LineSegment(App.Vector(25.429875, 26.67, 0), App.Vector(31.115, 26.67, 0)), False)
sketch11.addGeometry(Part.LineSegment(App.Vector(31.115, 26.67, 0), App.Vector(31.115, 20.552912, 0)), False)
sketch11.addGeometry(Part.LineSegment(App.Vector(31.115, 20.552912, 0), App.Vector(25.429875, 20.552912, 0)), False)
sketch11.addGeometry(Part.Circle(App.Vector(28.575, 24.13, 0), App.Vector(0, 0, 1), 1), False)
sketch11.addConstraint(Sketcher.Constraint("Coincident", 0, 2, 1, 1))
sketch11.addConstraint(Sketcher.Constraint("Coincident", 1, 2, 2, 1))
sketch11.addConstraint(Sketcher.Constraint("Coincident", 2, 2, 3, 1))
sketch11.addConstraint(Sketcher.Constraint("Coincident", 3, 2, 0, 1))
sketch11.addConstraint(Sketcher.Constraint("Vertical", 0))
sketch11.addConstraint(Sketcher.Constraint("Horizontal", 1))
sketch11.addConstraint(Sketcher.Constraint("Vertical", 2))
sketch11.addConstraint(Sketcher.Constraint("Horizontal", 3))
sketch11.addConstraint(Sketcher.Constraint("Diameter", 4, Q("2 mm")))
sketch11.addConstraint(Sketcher.Constraint("DistanceY", -1, 1, 4, 3, Q("24.13 mm")))
sketch11.addConstraint(Sketcher.Constraint("DistanceY", -1, 1, 0, 2, Q("26.67 mm")))
sketch11.addConstraint(Sketcher.Constraint("DistanceX", 4, 3, 1, 2, Q("2.54 mm")))
sketch11.addConstraint(Sketcher.Constraint("DistanceX", -1, 1, 4, 3, Q("28.575 mm")))
sketch11.addConstraint(Sketcher.Constraint("DistanceX", 1, 1, 1, 2, Q("5.685125 mm")))
sketch11.addConstraint(Sketcher.Constraint("DistanceY", 0, 1, 0, 2, Q("6.117088 mm")))
pad8 = body5.newObject("PartDesign::Pad", "Pad007")
pad8.Profile = sketch11
pad8.Length = 6
pad8.Reversed = True
body6 = doc.addObject("PartDesign::Body", "Body005")

sketch12 = body6.newObject("Sketcher::SketchObject", "Sketch011")
sketch12.AttachmentSupport = (doc.getObject("XZ_Plane005"), [""])
sketch12.MapMode = "FlatFace"
sketch12.AttachmentOffset = App.Placement(App.Vector(0, 0, -1.6), App.Rotation())
sketch12.addGeometry(Part.LineSegment(App.Vector(25.168609, -26.67, 0), App.Vector(25.168609, -18.462786, 0)), False)
sketch12.addGeometry(Part.LineSegment(App.Vector(25.168609, -18.462786, 0), App.Vector(31.115, -18.462786, 0)), False)
sketch12.addGeometry(Part.LineSegment(App.Vector(31.115, -18.462786, 0), App.Vector(31.115, -26.67, 0)), False)
sketch12.addGeometry(Part.LineSegment(App.Vector(31.115, -26.67, 0), App.Vector(25.168609, -26.67, 0)), False)
sketch12.addGeometry(Part.Circle(App.Vector(28.575, -21.59, 0), App.Vector(0, 0, 1), 1), False)
sketch12.addConstraint(Sketcher.Constraint("Coincident", 0, 2, 1, 1))
sketch12.addConstraint(Sketcher.Constraint("Coincident", 1, 2, 2, 1))
sketch12.addConstraint(Sketcher.Constraint("Coincident", 2, 2, 3, 1))
sketch12.addConstraint(Sketcher.Constraint("Coincident", 3, 2, 0, 1))
sketch12.addConstraint(Sketcher.Constraint("Vertical", 0))
sketch12.addConstraint(Sketcher.Constraint("Horizontal", 1))
sketch12.addConstraint(Sketcher.Constraint("Vertical", 2))
sketch12.addConstraint(Sketcher.Constraint("Horizontal", 3))
sketch12.addConstraint(Sketcher.Constraint("Diameter", 4, Q("2 mm")))
sketch12.addConstraint(Sketcher.Constraint("DistanceY", 4, 3, -1, 1, Q("21.59 mm")))
sketch12.addConstraint(Sketcher.Constraint("DistanceY", 2, 2, -1, 1, Q("26.67 mm")))
sketch12.addConstraint(Sketcher.Constraint("DistanceX", 4, 3, 1, 2, Q("2.54 mm")))
sketch12.addConstraint(Sketcher.Constraint("DistanceX", -1, 1, 4, 3, Q("28.575 mm")))
sketch12.addConstraint(Sketcher.Constraint("DistanceX", 1, 1, 1, 2, Q("5.946391 mm")))
sketch12.addConstraint(Sketcher.Constraint("DistanceY", 0, 1, 0, 2, Q("8.207214 mm")))
pad9 = body6.newObject("PartDesign::Pad", "Pad008")
pad9.Profile = sketch12
pad9.Length = 6
pad9.Reversed = True

doc.recompute()
